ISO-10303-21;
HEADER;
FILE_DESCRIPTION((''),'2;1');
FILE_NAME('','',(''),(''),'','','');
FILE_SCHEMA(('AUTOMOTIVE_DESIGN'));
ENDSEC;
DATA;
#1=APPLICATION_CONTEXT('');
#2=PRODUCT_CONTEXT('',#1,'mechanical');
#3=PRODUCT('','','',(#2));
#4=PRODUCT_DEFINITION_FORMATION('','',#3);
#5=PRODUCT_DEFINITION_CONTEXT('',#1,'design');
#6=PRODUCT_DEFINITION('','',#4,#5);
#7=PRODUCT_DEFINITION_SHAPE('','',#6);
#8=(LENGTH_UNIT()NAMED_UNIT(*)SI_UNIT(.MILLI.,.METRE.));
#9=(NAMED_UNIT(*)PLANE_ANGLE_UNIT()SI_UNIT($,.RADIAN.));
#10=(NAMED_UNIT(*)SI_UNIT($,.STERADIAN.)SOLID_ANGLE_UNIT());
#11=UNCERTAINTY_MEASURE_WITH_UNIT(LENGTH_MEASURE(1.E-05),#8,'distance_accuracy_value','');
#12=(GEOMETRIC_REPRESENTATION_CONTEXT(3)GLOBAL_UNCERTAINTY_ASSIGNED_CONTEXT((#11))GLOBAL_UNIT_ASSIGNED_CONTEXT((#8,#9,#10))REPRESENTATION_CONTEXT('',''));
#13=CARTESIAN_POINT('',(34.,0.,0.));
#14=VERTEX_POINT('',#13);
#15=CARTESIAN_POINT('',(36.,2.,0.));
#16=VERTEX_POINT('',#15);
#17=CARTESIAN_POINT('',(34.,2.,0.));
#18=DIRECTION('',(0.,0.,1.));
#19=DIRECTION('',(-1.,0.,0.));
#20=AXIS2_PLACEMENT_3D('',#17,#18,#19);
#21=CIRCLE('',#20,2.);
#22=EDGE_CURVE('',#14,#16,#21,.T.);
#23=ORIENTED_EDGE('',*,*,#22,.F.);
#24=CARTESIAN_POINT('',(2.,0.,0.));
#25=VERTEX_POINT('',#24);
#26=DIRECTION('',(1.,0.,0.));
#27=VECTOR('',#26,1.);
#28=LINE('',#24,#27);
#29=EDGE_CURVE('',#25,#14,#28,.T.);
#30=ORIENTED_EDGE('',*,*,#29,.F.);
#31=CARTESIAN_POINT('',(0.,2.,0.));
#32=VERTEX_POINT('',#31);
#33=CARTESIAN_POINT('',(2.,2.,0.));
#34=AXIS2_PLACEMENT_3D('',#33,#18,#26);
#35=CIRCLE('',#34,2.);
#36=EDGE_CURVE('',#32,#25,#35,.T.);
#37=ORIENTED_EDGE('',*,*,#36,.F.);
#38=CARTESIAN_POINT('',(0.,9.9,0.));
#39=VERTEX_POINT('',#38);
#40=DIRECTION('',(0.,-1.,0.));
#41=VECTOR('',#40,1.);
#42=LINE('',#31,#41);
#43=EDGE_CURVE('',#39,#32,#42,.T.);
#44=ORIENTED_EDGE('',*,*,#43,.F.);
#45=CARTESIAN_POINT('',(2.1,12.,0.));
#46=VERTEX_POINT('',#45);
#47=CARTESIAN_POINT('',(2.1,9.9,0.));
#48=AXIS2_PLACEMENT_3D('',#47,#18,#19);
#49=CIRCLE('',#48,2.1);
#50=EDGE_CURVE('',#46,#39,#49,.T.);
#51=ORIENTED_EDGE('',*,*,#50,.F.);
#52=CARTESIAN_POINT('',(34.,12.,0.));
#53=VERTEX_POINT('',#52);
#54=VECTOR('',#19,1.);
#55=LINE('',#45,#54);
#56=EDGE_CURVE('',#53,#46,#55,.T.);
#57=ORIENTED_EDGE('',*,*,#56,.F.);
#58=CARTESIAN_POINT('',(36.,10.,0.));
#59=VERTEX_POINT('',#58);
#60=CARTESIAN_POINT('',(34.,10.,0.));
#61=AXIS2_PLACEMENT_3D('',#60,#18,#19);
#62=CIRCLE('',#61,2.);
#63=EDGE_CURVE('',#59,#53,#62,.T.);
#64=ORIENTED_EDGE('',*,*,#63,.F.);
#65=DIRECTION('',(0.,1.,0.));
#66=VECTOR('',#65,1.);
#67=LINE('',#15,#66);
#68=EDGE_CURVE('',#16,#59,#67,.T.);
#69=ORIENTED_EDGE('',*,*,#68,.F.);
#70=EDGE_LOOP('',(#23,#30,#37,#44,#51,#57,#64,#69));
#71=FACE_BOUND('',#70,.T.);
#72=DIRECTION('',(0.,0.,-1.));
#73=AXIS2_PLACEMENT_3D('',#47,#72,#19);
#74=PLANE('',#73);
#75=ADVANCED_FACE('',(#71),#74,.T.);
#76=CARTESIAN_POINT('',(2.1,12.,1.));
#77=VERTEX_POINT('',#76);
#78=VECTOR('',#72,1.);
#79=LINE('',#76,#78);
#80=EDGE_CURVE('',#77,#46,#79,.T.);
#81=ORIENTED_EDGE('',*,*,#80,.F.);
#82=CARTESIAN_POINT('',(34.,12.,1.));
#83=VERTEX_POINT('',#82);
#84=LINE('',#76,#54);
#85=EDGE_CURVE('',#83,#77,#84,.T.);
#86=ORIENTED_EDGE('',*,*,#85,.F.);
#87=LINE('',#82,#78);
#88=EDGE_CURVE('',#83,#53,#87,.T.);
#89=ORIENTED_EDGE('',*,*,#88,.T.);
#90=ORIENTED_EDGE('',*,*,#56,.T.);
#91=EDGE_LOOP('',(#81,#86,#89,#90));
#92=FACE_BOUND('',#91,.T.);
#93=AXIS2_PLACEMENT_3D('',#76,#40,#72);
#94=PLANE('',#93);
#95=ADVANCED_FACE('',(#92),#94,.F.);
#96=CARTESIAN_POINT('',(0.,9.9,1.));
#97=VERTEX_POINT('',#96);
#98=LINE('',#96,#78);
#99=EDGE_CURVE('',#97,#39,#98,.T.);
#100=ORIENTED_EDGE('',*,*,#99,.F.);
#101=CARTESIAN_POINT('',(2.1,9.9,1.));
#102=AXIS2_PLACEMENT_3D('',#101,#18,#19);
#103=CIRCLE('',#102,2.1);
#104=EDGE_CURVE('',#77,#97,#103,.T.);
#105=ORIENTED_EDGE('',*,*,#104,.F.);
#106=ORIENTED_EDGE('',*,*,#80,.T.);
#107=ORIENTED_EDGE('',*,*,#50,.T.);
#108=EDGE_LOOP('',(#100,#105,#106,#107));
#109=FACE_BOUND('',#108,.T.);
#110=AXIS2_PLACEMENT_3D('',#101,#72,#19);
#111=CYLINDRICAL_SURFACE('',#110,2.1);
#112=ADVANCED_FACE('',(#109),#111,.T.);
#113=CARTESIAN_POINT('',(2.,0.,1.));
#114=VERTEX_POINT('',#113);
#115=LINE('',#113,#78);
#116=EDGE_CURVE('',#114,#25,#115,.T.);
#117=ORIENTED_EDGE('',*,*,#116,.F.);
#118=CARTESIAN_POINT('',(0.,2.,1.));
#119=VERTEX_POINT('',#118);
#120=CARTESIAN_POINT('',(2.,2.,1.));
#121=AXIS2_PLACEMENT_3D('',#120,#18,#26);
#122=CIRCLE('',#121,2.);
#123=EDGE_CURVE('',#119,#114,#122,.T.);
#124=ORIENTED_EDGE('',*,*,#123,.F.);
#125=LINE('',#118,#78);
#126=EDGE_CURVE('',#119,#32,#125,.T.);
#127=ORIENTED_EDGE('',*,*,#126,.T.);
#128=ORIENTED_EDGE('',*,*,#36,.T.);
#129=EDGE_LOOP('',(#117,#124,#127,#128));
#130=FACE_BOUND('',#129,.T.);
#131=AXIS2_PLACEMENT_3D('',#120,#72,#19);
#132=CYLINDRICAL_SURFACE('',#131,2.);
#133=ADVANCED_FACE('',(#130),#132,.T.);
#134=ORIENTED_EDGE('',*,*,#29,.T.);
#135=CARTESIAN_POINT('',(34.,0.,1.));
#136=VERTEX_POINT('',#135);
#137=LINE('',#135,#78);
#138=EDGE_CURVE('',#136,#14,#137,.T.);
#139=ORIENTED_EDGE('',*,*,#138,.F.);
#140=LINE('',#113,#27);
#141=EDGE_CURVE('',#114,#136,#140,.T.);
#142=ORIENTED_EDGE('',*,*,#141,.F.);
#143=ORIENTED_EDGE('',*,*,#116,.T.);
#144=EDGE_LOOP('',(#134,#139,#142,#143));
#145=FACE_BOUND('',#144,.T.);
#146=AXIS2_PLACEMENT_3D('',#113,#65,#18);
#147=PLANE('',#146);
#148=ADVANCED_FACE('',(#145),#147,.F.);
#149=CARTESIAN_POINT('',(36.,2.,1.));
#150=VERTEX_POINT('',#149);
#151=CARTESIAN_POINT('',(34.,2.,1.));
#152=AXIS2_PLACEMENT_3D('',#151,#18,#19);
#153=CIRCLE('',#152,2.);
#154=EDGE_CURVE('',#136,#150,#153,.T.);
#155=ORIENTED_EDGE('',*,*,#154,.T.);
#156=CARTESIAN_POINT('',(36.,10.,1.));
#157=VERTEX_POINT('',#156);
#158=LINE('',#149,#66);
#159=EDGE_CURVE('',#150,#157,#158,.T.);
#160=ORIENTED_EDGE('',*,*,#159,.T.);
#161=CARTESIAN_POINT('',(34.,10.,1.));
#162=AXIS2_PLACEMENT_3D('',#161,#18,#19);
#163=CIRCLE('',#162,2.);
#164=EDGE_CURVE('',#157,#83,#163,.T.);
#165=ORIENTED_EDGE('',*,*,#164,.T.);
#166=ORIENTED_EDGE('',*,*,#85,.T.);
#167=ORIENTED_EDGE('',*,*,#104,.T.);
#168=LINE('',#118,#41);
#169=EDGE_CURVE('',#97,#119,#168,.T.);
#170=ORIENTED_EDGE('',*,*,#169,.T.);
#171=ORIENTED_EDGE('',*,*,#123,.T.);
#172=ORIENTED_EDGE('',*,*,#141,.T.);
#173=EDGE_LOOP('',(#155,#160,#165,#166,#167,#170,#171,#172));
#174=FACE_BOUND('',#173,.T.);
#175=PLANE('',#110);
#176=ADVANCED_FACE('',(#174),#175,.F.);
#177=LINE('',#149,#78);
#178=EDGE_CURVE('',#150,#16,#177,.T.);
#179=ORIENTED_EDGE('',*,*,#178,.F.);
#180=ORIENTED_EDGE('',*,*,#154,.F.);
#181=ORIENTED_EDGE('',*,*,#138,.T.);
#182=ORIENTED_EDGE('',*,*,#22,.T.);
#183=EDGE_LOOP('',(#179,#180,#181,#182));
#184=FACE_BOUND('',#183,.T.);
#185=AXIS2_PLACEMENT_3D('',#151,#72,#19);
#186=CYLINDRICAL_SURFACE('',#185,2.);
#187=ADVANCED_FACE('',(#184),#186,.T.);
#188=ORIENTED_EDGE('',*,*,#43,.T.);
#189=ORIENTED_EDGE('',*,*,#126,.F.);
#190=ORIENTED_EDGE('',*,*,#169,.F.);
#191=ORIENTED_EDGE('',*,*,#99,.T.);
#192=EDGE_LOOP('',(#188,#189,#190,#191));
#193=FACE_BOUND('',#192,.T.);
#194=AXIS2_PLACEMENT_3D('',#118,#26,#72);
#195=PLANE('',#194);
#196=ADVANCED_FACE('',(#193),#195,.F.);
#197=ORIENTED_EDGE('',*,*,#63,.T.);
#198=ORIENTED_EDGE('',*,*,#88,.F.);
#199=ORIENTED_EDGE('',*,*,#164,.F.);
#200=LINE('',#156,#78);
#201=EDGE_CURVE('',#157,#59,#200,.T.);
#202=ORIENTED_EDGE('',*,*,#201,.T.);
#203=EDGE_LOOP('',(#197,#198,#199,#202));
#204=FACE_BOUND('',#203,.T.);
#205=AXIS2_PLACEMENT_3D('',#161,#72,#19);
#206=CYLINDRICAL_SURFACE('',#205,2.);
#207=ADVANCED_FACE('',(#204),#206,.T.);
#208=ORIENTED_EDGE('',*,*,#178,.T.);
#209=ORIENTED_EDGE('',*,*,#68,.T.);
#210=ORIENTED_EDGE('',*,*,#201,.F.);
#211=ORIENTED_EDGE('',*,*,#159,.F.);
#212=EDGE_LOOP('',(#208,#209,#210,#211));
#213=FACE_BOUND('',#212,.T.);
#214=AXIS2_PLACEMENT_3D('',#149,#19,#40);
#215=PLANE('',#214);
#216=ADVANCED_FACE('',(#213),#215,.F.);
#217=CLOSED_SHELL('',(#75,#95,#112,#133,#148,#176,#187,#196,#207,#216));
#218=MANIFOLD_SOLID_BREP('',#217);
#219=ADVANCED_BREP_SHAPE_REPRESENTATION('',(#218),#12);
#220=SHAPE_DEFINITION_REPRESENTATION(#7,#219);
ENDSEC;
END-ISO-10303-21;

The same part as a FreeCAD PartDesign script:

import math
import FreeCAD as App
import Part
import Sketcher

V = App.Vector

doc = App.newDocument("Part")
body = doc.addObject("PartDesign::Body", "Body")

# Sketch on XY plane
sketch1 = doc.addObject("Sketcher::SketchObject", "Sketch")
body.addObject(sketch1)
sketch1.AttachmentSupport = (doc.XY_Plane, [""])
sketch1.MapMode = "FlatFace"
sketch1.addGeometry(Part.LineSegment(V(2, 0, 0), V(34, 0, 0)), False)
sketch1.addGeometry(Part.ArcOfCircle(Part.Circle(V(34, 2, 0), V(0, 0, 1), 2), math.radians(-90), math.radians(0)), False)
sketch1.addGeometry(Part.LineSegment(V(36, 2, 0), V(36, 10, 0)), False)
sketch1.addGeometry(Part.ArcOfCircle(Part.Circle(V(34, 10, 0), V(0, 0, 1), 2), math.radians(0), math.radians(90)), False)
sketch1.addGeometry(Part.LineSegment(V(34, 12, 0), V(2.1, 12, 0)), False)
sketch1.addGeometry(Part.ArcOfCircle(Part.Circle(V(2.1, 9.9, 0), V(0, 0, 1), 2.1), math.radians(90), math.radians(180)), False)
sketch1.addGeometry(Part.LineSegment(V(0, 9.9, 0), V(0, 2, 0)), False)
sketch1.addGeometry(Part.ArcOfCircle(Part.Circle(V(2, 2, 0), V(0, 0, 1), 2), math.radians(-180), math.radians(-90)), False)
sketch1.addConstraint(Sketcher.Constraint("Tangent", 0, 2, 1, 1))
sketch1.addConstraint(Sketcher.Constraint("Tangent", 1, 2, 2, 1))
sketch1.addConstraint(Sketcher.Constraint("Tangent", 2, 2, 3, 1))
sketch1.addConstraint(Sketcher.Constraint("Tangent", 3, 2, 4, 1))
sketch1.addConstraint(Sketcher.Constraint("Tangent", 4, 2, 5, 1))
sketch1.addConstraint(Sketcher.Constraint("Tangent", 5, 2, 6, 1))
sketch1.addConstraint(Sketcher.Constraint("Tangent", 6, 2, 7, 1))
sketch1.addConstraint(Sketcher.Constraint("Tangent", 7, 2, 0, 1))
sketch1.addConstraint(Sketcher.Constraint("Horizontal", 0))
sketch1.addConstraint(Sketcher.Constraint("Vertical", 2))
sketch1.addConstraint(Sketcher.Constraint("Horizontal", 4))
sketch1.addConstraint(Sketcher.Constraint("Vertical", 6))
sketch1.addConstraint(Sketcher.Constraint("Equal", 1, 3))
sketch1.addConstraint(Sketcher.Constraint("Equal", 3, 7))
sketch1.addConstraint(Sketcher.Constraint("PointOnObject", 0, 2, -1))
sketch1.addConstraint(Sketcher.Constraint("PointOnObject", 5, 2, -2))
sketch1.addConstraint(Sketcher.Constraint("Radius", 1, 2.0))
sketch1.addConstraint(Sketcher.Constraint("Radius", 5, 2.1))
sketch1.addConstraint(Sketcher.Constraint("DistanceX", 0, 1, 0, 2, 32.0))
sketch1.addConstraint(Sketcher.Constraint("DistanceY", 2, 1, 2, 2, 8.0))
pad1 = doc.addObject("PartDesign::Pad", "Pad")
body.addObject(pad1)
pad1.Profile = sketch1
pad1.Length = 1

doc.recompute()
